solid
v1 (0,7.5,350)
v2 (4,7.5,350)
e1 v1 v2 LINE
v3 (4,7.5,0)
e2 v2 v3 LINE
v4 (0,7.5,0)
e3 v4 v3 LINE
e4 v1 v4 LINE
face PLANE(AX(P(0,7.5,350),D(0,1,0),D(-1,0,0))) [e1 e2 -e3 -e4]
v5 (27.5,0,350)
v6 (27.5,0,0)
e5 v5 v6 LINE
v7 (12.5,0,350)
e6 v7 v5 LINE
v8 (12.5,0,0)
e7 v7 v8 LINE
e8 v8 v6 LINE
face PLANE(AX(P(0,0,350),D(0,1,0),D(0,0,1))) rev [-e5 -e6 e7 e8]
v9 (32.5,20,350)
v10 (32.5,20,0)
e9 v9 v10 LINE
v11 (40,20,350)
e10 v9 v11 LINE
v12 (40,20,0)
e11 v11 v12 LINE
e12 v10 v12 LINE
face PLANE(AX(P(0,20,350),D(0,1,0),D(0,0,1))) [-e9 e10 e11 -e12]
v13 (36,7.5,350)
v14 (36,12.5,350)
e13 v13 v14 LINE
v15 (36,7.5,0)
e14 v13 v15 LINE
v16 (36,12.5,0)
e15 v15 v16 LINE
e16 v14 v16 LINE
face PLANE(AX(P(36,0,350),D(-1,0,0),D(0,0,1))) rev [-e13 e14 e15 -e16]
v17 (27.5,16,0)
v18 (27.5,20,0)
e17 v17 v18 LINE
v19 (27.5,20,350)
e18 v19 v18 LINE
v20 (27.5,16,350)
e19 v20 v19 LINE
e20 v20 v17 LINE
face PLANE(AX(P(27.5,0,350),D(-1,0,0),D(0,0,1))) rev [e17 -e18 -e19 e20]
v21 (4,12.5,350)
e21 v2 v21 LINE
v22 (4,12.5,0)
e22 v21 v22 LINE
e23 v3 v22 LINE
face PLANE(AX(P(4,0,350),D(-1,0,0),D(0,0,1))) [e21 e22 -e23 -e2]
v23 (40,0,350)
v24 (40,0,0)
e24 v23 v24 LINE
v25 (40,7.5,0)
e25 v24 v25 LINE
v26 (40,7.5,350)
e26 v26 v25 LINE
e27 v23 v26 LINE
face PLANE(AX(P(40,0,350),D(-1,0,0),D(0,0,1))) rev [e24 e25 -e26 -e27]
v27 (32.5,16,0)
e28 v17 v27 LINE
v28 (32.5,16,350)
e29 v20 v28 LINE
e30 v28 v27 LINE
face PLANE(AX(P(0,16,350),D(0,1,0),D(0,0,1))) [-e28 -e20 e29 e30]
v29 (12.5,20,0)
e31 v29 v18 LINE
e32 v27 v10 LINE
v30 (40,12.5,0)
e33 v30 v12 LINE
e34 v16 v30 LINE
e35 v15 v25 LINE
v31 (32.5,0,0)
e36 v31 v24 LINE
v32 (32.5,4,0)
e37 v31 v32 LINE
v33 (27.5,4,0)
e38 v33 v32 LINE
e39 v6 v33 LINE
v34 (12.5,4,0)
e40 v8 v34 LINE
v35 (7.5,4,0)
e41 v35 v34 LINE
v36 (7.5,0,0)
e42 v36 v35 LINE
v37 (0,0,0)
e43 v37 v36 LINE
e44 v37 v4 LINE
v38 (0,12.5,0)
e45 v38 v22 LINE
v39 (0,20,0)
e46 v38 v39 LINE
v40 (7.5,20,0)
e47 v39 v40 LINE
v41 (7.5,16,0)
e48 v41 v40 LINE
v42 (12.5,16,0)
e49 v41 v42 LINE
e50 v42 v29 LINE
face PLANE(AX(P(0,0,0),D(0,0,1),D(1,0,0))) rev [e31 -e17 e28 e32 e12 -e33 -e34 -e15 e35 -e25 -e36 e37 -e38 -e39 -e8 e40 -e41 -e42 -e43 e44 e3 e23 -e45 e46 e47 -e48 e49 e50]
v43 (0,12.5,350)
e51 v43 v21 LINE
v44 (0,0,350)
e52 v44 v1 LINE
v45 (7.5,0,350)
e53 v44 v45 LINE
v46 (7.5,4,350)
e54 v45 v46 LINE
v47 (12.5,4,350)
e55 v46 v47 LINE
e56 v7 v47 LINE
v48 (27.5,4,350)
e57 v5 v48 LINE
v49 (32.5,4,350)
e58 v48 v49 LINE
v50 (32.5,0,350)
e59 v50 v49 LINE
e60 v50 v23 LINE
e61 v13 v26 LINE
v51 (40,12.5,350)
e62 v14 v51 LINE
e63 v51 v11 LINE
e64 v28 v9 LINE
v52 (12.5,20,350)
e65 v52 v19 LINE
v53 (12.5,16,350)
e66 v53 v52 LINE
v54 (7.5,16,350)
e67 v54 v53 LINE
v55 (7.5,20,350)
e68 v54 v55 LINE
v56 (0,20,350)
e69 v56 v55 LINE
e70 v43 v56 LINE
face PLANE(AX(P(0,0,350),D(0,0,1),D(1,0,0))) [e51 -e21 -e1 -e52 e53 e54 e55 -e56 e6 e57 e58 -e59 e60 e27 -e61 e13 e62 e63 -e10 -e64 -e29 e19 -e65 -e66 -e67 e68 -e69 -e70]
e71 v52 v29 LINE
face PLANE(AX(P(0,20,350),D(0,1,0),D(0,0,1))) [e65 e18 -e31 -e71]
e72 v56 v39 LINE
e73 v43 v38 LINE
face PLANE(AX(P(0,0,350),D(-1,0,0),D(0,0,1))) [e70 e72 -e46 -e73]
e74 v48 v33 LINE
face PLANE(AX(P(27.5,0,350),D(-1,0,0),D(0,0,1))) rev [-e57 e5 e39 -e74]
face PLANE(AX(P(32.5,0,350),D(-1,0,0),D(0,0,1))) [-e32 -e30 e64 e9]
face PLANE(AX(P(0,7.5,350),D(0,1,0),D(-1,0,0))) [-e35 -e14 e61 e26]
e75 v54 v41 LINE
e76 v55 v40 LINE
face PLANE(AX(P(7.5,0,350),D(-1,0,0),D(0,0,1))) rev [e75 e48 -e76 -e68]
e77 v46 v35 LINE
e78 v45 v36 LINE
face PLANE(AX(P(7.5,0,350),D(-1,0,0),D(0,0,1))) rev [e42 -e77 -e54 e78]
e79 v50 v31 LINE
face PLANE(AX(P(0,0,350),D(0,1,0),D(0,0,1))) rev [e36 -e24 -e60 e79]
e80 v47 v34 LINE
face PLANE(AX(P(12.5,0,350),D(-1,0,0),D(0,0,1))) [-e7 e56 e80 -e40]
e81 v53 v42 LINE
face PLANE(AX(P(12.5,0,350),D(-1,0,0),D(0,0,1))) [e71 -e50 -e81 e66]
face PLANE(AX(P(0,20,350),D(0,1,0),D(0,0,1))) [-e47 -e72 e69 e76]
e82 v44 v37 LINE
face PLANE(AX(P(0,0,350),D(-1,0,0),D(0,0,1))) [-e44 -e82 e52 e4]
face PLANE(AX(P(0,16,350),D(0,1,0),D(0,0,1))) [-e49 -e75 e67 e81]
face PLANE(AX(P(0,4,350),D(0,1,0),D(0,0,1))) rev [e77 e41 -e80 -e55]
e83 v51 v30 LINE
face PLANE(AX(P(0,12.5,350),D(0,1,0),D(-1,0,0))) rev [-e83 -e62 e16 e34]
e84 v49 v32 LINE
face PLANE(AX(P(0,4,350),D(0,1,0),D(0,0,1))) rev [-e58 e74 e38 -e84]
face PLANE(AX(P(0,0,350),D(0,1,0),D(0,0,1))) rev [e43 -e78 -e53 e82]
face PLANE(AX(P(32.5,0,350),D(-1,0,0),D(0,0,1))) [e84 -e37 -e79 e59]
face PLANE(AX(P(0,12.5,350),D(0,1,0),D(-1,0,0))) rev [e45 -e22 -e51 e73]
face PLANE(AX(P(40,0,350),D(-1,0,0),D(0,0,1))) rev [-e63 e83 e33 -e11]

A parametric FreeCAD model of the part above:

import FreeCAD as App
import Part
import Sketcher

doc = App.newDocument("Part")
body = doc.addObject("PartDesign::Body", "Body")

# Sketch on XY plane
sketch1 = doc.addObject("Sketcher::SketchObject", "Sketch")
body.addObject(sketch1)
sketch1.AttachmentSupport = (doc.XY_Plane, [""])
sketch1.MapMode = "FlatFace"
sketch1.addGeometry(Part.LineSegment(App.Vector(7.5, 20, 0), App.Vector(0, 20, 0)), False)
sketch1.addGeometry(Part.LineSegment(App.Vector(0, 20, 0), App.Vector(0, 12.5, 0)), False)
sketch1.addGeometry(Part.LineSegment(App.Vector(0, 12.5, 0), App.Vector(4, 12.5, 0)), False)
sketch1.addGeometry(Part.LineSegment(App.Vector(4, 12.5, 0), App.Vector(4, 7.5, 0)), False)
sketch1.addGeometry(Part.LineSegment(App.Vector(4, 7.5, 0), App.Vector(0, 7.5, 0)), False)
sketch1.addGeometry(Part.LineSegment(App.Vector(0, 7.5, 0), App.Vector(0, 0, 0)), False)
sketch1.addGeometry(Part.LineSegment(App.Vector(0, 0, 0), App.Vector(7.5, 0, 0)), False)
sketch1.addGeometry(Part.LineSegment(App.Vector(7.5, 0, 0), App.Vector(7.5, 4, 0)), False)
sketch1.addGeometry(Part.LineSegment(App.Vector(7.5, 4, 0), App.Vector(12.5, 4, 0)), False)
sketch1.addGeometry(Part.LineSegment(App.Vector(12.5, 4, 0), App.Vector(12.5, 0, 0)), False)
sketch1.addGeometry(Part.LineSegment(App.Vector(12.5, 0, 0), App.Vector(27.5, 0, 0)), False)
sketch1.addGeometry(Part.LineSegment(App.Vector(27.5, 0, 0), App.Vector(27.5, 4, 0)), False)
sketch1.addGeometry(Part.LineSegment(App.Vector(27.5, 4, 0), App.Vector(32.5, 4, 0)), False)
sketch1.addGeometry(Part.LineSegment(App.Vector(32.5, 4, 0), App.Vector(32.5, 0, 0)), False)
sketch1.addGeometry(Part.LineSegment(App.Vector(32.5, 0, 0), App.Vector(40, 0, 0)), False)
sketch1.addGeometry(Part.LineSegment(App.Vector(40, 0, 0), App.Vector(40, 7.5, 0)), False)
sketch1.addGeometry(Part.LineSegment(App.Vector(40, 7.5, 0), App.Vector(36, 7.5, 0)), False)
sketch1.addGeometry(Part.LineSegment(App.Vector(36, 7.5, 0), App.Vector(36, 12.5, 0)), False)
sketch1.addGeometry(Part.LineSegment(App.Vector(36, 12.5, 0), App.Vector(40, 12.5, 0)), False)
sketch1.addGeometry(Part.LineSegment(App.Vector(40, 12.5, 0), App.Vector(40, 20, 0)), False)
sketch1.addGeometry(Part.LineSegment(App.Vector(40, 20, 0), App.Vector(32.5, 20, 0)), False)
sketch1.addGeometry(Part.LineSegment(App.Vector(32.5, 20, 0), App.Vector(32.5, 16, 0)), False)
sketch1.addGeometry(Part.LineSegment(App.Vector(32.5, 16, 0), App.Vector(27.5, 16, 0)), False)
sketch1.addGeometry(Part.LineSegment(App.Vector(27.5, 16, 0), App.Vector(27.5, 20, 0)), False)
sketch1.addGeometry(Part.LineSegment(App.Vector(27.5, 20, 0), App.Vector(12.5, 20, 0)), False)
sketch1.addGeometry(Part.LineSegment(App.Vector(12.5, 20, 0), App.Vector(12.5, 16, 0)), False)
sketch1.addGeometry(Part.LineSegment(App.Vector(12.5, 16, 0), App.Vector(7.5, 16, 0)), False)
sketch1.addGeometry(Part.LineSegment(App.Vector(7.5, 16, 0), App.Vector(7.5, 20, 0)), False)
sketch1.addConstraint(Sketcher.Constraint("Coincident", 0, 2, 1, 1))
sketch1.addConstraint(Sketcher.Constraint("Coincident", 1, 2, 2, 1))
sketch1.addConstraint(Sketcher.Constraint("Coincident", 2, 2, 3, 1))
sketch1.addConstraint(Sketcher.Constraint("Coincident", 3, 2, 4, 1))
sketch1.addConstraint(Sketcher.Constraint("Coincident", 4, 2, 5, 1))
sketch1.addConstraint(Sketcher.Constraint("Coincident", 5, 2, 6, 1))
sketch1.addConstraint(Sketcher.Constraint("Coincident", 6, 2, 7, 1))
sketch1.addConstraint(Sketcher.Constraint("Coincident", 7, 2, 8, 1))
sketch1.addConstraint(Sketcher.Constraint("Coincident", 8, 2, 9, 1))
sketch1.addConstraint(Sketcher.Constraint("Coincident", 9, 2, 10, 1))
sketch1.addConstraint(Sketcher.Constraint("Coincident", 10, 2, 11, 1))
sketch1.addConstraint(Sketcher.Constraint("Coincident", 11, 2, 12, 1))
sketch1.addConstraint(Sketcher.Constraint("Coincident", 12, 2, 13, 1))
sketch1.addConstraint(Sketcher.Constraint("Coincident", 13, 2, 14, 1))
sketch1.addConstraint(Sketcher.Constraint("Coincident", 14, 2, 15, 1))
sketch1.addConstraint(Sketcher.Constraint("Coincident", 15, 2, 16, 1))
sketch1.addConstraint(Sketcher.Constraint("Coincident", 16, 2, 17, 1))
sketch1.addConstraint(Sketcher.Constraint("Coincident", 17, 2, 18, 1))
sketch1.addConstraint(Sketcher.Constraint("Coincident", 18, 2, 19, 1))
sketch1.addConstraint(Sketcher.Constraint("Coincident", 19, 2, 20, 1))
sketch1.addConstraint(Sketcher.Constraint("Coincident", 20, 2, 21, 1))
sketch1.addConstraint(Sketcher.Constraint("Coincident", 21, 2, 22, 1))
sketch1.addConstraint(Sketcher.Constraint("Coincident", 22, 2, 23, 1))
sketch1.addConstraint(Sketcher.Constraint("Coincident", 23, 2, 24, 1))
sketch1.addConstraint(Sketcher.Constraint("Coincident", 24, 2, 25, 1))
sketch1.addConstraint(Sketcher.Constraint("Coincident", 25, 2, 26, 1))
sketch1.addConstraint(Sketcher.Constraint("Coincident", 26, 2, 27, 1))
sketch1.addConstraint(Sketcher.Constraint("Coincident", 27, 2, 0, 1))
sketch1.addConstraint(Sketcher.Constraint("Horizontal", 0))
sketch1.addConstraint(Sketcher.Constraint("Vertical", 1))
sketch1.addConstraint(Sketcher.Constraint("Horizontal", 2))
sketch1.addConstraint(Sketcher.Constraint("Vertical", 3))
sketch1.addConstraint(Sketcher.Constraint("Horizontal", 4))
sketch1.addConstraint(Sketcher.Constraint("Vertical", 5))
sketch1.addConstraint(Sketcher.Constraint("Horizontal", 6))
sketch1.addConstraint(Sketcher.Constraint("Vertical", 7))
sketch1.addConstraint(Sketcher.Constraint("Horizontal", 8))
sketch1.addConstraint(Sketcher.Constraint("Vertical", 9))
sketch1.addConstraint(Sketcher.Constraint("Horizontal", 10))
sketch1.addConstraint(Sketcher.Constraint("Vertical", 11))
sketch1.addConstraint(Sketcher.Constraint("Horizontal", 12))
sketch1.addConstraint(Sketcher.Constraint("Vertical", 13))
sketch1.addConstraint(Sketcher.Constraint("Horizontal", 14))
sketch1.addConstraint(Sketcher.Constraint("Vertical", 15))
sketch1.addConstraint(Sketcher.Constraint("Horizontal", 16))
sketch1.addConstraint(Sketcher.Constraint("Vertical", 17))
sketch1.addConstraint(Sketcher.Constraint("Horizontal", 18))
sketch1.addConstraint(Sketcher.Constraint("Vertical", 19))
sketch1.addConstraint(Sketcher.Constraint("Horizontal", 20))
sketch1.addConstraint(Sketcher.Constraint("Vertical", 21))
sketch1.addConstraint(Sketcher.Constraint("Horizontal", 22))
sketch1.addConstraint(Sketcher.Constraint("Vertical", 23))
sketch1.addConstraint(Sketcher.Constraint("Horizontal", 24))
sketch1.addConstraint(Sketcher.Constraint("Vertical", 25))
sketch1.addConstraint(Sketcher.Constraint("Horizontal", 26))
sketch1.addConstraint(Sketcher.Constraint("Vertical", 27))
sketch1.addConstraint(Sketcher.Constraint("Coincident", 5, 2, -1, 1))
sketch1.addConstraint(Sketcher.Constraint("PointOnObject", 0, 2, -2))
sketch1.addConstraint(Sketcher.Constraint("PointOnObject", 9, 2, -1))
sketch1.addConstraint(Sketcher.Constraint("PointOnObject", 13, 2, -1))
sketch1.addConstraint(Sketcher.Constraint("Horizontal", 8, 2, 11, 2))
sketch1.addConstraint(Sketcher.Constraint("Horizontal", 4, 2, 15, 2))
sketch1.addConstraint(Sketcher.Constraint("Horizontal", 2, 2, 17, 2))
sketch1.addConstraint(Sketcher.Constraint("Horizontal", 0, 2, 19, 2))
sketch1.addConstraint(Sketcher.Constraint("Horizontal", 20, 2, 23, 2))
sketch1.addConstraint(Sketcher.Constraint("Horizontal", 22, 2, 25, 2))
sketch1.addConstraint(Sketcher.Constraint("Vertical", 15, 2, 18, 2))
sketch1.addConstraint(Sketcher.Constraint("Vertical", 13, 2, 20, 2))
sketch1.addConstraint(Sketcher.Constraint("Vertical", 11, 2, 22, 2))
sketch1.addConstraint(Sketcher.Constraint("Vertical", 9, 2, 24, 2))
sketch1.addConstraint(Sketcher.Constraint("Vertical", 7, 2, 26, 2))
sketch1.addConstraint(Sketcher.Constraint("Equal", 8, 12))
sketch1.addConstraint(Sketcher.Constraint("Equal", 6, 14))
sketch1.addConstraint(Sketcher.Constraint("Equal", 4, 16))
sketch1.addConstraint(Sketcher.Constraint("Equal", 20, 1))
sketch1.addConstraint(Sketcher.Constraint("Equal", 26, 3))
sketch1.addConstraint(Sketcher.Constraint("Equal", 1, 5))
sketch1.addConstraint(Sketcher.Constraint("Equal", 18, 7))
sketch1.addConstraint(Sketcher.Constraint("Equal", 13, 21))
sketch1.addConstraint(Sketcher.Constraint("DistanceX", 2, 1, 2, 2, 4.0))
sketch1.addConstraint(Sketcher.Constraint("DistanceX", 8, 1, 8, 2, 5.0))
sketch1.addConstraint(Sketcher.Constraint("DistanceX", 10, 1, 10, 2, 15.0))
sketch1.addConstraint(Sketcher.Constraint("DistanceX", 0, 2, 0, 1, 7.5))
pad1 = doc.addObject("PartDesign::Pad", "Pad")
body.addObject(pad1)
pad1.Profile = sketch1
pad1.Length = 350

doc.recompute()
